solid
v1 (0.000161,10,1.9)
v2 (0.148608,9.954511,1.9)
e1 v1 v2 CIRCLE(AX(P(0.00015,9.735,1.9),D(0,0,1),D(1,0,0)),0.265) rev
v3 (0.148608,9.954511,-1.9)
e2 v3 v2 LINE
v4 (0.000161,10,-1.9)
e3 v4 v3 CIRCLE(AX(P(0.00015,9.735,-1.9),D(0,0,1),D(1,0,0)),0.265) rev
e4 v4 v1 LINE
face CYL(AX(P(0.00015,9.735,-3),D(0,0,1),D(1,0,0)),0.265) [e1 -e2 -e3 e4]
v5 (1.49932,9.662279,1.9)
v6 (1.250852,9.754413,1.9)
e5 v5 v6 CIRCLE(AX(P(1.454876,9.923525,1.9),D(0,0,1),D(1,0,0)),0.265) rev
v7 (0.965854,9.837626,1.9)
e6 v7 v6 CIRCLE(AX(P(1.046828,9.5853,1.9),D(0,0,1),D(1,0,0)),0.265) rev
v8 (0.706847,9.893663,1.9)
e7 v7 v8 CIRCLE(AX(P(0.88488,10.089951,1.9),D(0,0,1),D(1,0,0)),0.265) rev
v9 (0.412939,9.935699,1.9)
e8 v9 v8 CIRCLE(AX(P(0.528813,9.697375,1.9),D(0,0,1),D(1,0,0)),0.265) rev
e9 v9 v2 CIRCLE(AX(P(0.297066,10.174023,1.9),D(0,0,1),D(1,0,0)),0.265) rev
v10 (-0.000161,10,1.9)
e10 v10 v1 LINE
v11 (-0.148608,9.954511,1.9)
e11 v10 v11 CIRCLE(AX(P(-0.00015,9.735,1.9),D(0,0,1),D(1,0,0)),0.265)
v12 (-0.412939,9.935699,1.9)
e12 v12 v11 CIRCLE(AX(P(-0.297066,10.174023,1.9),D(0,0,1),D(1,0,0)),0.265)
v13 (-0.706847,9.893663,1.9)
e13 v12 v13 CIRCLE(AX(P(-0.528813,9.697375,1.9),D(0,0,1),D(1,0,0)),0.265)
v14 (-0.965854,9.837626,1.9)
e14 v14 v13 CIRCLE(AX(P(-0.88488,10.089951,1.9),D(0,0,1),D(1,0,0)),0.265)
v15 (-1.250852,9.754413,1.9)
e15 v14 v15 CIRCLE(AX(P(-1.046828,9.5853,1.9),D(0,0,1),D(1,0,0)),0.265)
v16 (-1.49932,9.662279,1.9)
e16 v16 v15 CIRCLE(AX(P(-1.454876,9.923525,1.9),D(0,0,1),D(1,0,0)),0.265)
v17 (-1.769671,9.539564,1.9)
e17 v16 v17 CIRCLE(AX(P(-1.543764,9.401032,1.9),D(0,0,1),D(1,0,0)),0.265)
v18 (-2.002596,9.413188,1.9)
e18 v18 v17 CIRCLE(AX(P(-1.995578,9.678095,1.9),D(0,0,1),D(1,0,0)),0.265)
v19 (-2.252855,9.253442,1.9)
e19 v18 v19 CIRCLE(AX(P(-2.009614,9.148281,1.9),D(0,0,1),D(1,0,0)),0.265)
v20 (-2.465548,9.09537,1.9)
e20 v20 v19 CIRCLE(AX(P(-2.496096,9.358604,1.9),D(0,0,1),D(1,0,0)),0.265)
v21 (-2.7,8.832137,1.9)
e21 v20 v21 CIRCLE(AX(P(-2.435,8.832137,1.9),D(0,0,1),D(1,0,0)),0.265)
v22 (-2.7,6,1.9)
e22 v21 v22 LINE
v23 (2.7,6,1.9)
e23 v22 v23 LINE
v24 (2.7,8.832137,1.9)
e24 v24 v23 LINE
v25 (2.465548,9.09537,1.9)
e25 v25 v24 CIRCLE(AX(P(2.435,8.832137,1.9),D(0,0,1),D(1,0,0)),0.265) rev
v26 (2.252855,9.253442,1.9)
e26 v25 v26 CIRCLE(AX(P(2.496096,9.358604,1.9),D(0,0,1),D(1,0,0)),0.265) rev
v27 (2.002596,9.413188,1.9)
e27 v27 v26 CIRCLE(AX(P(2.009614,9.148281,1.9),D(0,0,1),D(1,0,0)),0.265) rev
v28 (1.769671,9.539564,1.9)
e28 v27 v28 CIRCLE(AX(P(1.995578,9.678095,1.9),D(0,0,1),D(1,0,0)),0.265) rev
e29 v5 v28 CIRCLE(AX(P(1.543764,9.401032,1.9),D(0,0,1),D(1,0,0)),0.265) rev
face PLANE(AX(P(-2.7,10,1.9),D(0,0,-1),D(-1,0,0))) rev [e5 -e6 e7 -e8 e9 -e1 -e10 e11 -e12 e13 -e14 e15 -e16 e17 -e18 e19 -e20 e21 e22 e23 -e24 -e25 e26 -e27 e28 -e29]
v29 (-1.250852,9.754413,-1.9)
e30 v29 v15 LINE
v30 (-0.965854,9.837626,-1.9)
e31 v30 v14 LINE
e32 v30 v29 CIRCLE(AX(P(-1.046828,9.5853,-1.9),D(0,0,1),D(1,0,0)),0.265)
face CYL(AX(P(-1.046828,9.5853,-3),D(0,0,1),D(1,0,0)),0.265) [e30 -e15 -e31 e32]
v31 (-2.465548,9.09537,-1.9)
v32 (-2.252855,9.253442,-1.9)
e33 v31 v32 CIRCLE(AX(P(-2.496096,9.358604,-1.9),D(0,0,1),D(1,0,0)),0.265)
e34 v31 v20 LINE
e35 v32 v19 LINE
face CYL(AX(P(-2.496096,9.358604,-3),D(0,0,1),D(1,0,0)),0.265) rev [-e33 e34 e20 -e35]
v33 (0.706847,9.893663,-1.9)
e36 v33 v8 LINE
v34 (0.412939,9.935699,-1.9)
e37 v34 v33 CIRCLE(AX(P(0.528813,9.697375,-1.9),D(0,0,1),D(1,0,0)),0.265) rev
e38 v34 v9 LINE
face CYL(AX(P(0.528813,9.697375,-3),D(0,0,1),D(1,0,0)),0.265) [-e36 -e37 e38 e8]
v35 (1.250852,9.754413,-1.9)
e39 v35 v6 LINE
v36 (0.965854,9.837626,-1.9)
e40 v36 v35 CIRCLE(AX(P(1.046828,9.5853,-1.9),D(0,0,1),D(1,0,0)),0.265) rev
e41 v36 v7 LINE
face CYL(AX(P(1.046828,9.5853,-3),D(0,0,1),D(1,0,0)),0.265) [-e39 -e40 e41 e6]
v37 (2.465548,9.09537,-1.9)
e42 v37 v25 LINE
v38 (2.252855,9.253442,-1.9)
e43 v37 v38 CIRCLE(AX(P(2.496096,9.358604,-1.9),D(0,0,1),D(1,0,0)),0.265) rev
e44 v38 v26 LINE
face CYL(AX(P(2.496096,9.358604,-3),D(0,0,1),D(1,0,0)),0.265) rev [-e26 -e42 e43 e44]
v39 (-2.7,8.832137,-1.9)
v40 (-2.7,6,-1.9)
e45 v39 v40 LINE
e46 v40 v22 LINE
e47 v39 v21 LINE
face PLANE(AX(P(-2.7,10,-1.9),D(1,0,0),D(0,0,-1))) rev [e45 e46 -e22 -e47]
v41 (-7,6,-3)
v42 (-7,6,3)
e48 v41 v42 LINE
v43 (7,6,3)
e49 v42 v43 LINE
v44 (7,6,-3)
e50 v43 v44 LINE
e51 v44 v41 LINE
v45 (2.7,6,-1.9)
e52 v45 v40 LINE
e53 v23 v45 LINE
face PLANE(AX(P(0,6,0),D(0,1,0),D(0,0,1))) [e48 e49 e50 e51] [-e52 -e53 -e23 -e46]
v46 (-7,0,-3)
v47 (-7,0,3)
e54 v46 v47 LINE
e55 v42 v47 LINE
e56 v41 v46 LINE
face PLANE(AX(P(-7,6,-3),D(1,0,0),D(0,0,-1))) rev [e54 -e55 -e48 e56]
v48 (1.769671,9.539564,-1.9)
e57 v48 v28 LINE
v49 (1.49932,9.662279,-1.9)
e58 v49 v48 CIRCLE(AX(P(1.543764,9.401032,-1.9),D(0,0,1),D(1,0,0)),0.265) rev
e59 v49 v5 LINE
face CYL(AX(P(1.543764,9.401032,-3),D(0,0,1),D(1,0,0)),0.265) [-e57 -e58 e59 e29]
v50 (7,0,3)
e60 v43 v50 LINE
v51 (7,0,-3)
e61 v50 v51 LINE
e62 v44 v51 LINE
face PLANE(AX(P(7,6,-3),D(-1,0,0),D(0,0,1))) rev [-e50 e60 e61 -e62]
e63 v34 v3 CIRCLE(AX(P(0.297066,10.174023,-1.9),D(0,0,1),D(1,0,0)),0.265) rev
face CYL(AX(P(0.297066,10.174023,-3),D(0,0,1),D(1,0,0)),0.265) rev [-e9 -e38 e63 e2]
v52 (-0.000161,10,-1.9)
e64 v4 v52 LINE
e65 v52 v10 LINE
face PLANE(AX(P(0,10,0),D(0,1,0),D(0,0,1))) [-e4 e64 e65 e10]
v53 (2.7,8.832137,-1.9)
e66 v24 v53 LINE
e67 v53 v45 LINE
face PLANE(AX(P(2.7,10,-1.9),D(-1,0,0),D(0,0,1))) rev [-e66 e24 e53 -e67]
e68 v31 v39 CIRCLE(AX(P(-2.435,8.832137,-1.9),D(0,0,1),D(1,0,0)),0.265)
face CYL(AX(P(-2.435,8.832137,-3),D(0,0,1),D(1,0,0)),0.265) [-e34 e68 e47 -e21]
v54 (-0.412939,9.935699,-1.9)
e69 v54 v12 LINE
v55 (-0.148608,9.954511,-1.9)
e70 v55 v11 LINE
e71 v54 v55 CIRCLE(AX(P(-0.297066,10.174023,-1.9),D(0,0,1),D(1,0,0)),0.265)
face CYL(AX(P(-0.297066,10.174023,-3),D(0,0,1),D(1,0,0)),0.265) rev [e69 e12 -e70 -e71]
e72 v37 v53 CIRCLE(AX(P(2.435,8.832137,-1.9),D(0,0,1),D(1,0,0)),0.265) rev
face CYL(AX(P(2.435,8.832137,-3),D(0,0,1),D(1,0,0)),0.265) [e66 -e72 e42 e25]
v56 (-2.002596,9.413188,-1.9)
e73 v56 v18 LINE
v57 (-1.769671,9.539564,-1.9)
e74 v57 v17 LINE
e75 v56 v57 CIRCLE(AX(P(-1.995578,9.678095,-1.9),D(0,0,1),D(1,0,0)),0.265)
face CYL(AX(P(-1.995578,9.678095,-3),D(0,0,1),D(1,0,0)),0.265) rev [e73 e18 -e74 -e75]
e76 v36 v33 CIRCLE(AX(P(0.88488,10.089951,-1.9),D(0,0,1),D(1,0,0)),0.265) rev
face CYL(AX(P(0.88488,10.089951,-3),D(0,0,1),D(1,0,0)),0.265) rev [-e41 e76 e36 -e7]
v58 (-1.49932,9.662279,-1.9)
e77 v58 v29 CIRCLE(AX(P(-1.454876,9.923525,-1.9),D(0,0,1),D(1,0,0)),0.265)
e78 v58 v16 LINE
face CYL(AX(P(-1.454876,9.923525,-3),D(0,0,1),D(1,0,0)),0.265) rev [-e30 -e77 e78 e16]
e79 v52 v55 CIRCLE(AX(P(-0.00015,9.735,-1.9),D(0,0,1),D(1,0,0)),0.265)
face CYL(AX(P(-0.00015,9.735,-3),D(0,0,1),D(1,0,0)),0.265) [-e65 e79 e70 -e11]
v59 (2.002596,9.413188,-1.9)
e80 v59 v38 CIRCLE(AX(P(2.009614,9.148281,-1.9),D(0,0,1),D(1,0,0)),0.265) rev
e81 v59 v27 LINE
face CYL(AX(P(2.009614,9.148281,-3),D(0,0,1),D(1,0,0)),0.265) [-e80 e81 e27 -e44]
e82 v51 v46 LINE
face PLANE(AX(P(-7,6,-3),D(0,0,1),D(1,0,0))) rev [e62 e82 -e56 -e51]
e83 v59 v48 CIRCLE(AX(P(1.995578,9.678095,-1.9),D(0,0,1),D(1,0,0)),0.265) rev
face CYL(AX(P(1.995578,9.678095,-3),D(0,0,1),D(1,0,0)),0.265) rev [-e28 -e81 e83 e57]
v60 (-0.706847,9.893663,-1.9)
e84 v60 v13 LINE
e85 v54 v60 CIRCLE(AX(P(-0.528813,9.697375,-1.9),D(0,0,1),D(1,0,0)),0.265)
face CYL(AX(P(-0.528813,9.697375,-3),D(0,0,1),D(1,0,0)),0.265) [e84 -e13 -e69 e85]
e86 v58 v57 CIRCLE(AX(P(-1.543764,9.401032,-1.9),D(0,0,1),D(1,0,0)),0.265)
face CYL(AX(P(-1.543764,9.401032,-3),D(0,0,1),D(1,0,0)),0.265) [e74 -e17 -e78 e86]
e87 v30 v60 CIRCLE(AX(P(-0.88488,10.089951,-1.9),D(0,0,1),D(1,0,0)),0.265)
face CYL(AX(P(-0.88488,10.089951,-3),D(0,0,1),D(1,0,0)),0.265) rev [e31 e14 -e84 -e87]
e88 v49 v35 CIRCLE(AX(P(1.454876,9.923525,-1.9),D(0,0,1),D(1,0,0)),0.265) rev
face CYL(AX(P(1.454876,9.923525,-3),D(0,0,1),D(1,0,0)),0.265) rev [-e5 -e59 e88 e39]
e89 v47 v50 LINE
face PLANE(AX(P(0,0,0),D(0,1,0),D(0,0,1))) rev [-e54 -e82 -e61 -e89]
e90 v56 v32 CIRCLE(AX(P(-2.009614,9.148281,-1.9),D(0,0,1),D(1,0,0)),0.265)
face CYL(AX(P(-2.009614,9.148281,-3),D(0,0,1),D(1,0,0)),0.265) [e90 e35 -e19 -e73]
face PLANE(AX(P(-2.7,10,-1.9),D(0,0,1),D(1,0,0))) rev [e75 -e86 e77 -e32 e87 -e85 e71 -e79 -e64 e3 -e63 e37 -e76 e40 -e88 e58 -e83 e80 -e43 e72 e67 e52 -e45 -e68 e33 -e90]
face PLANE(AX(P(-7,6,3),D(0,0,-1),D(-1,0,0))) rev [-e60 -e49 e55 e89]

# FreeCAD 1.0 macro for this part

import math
import FreeCAD as App
import Part
import Sketcher
Q = App.Units.Quantity

doc = App.newDocument("Part")
body = doc.addObject("PartDesign::Body", "Body")

sketch1 = body.newObject("Sketcher::SketchObject", "Sketch")
sketch1.AttachmentSupport = (doc.getObject("XZ_Plane"), [""])
sketch1.MapMode = "FlatFace"
sketch1.addGeometry(Part.LineSegment(App.Vector(-7, -3, 0), App.Vector(-7, 3, 0)), False)
sketch1.addGeometry(Part.LineSegment(App.Vector(-7, 3, 0), App.Vector(7, 3, 0)), False)
sketch1.addGeometry(Part.LineSegment(App.Vector(7, 3, 0), App.Vector(7, -3, 0)), False)
sketch1.addGeometry(Part.LineSegment(App.Vector(7, -3, 0), App.Vector(-7, -3, 0)), False)
sketch1.addConstraint(Sketcher.Constraint("Coincident", 0, 2, 1, 1))
sketch1.addConstraint(Sketcher.Constraint("Coincident", 1, 2, 2, 1))
sketch1.addConstraint(Sketcher.Constraint("Coincident", 2, 2, 3, 1))
sketch1.addConstraint(Sketcher.Constraint("Coincident", 3, 2, 0, 1))
sketch1.addConstraint(Sketcher.Constraint("Vertical", 0))
sketch1.addConstraint(Sketcher.Constraint("Horizontal", 1))
sketch1.addConstraint(Sketcher.Constraint("Vertical", 2))
sketch1.addConstraint(Sketcher.Constraint("Horizontal", 3))
sketch1.addConstraint(Sketcher.Constraint("Symmetric", 0, 2, 2, 2, -1, 1))
sketch1.addConstraint(Sketcher.Constraint("DistanceX", 1, 1, 1, 2, Q("14 mm")))
sketch1.addConstraint(Sketcher.Constraint("DistanceY", 0, 1, 0, 2, Q("6 mm")))
pad1 = body.newObject("PartDesign::Pad", "Pad")
pad1.Profile = sketch1
pad1.Length = 6
pad1.Reversed = True

sketch2 = body.newObject("Sketcher::SketchObject", "Sketch001")
sketch2.AttachmentSupport = (doc.getObject("XZ_Plane"), [""])
sketch2.MapMode = "FlatFace"
sketch2.AttachmentOffset = App.Placement(App.Vector(0, 0, -6), App.Rotation())
sketch2.addGeometry(Part.LineSegment(App.Vector(-2.7, -1.9, 0), App.Vector(-2.7, 1.9, 0)), False)
sketch2.addGeometry(Part.LineSegment(App.Vector(-2.7, 1.9, 0), App.Vector(2.7, 1.9, 0)), False)
sketch2.addGeometry(Part.LineSegment(App.Vector(2.7, 1.9, 0), App.Vector(2.7, -1.9, 0)), False)
sketch2.addGeometry(Part.LineSegment(App.Vector(2.7, -1.9, 0), App.Vector(-2.7, -1.9, 0)), False)
sketch2.addConstraint(Sketcher.Constraint("Coincident", 0, 2, 1, 1))
sketch2.addConstraint(Sketcher.Constraint("Coincident", 1, 2, 2, 1))
sketch2.addConstraint(Sketcher.Constraint("Coincident", 2, 2, 3, 1))
sketch2.addConstraint(Sketcher.Constraint("Coincident", 3, 2, 0, 1))
sketch2.addConstraint(Sketcher.Constraint("Vertical", 0))
sketch2.addConstraint(Sketcher.Constraint("Horizontal", 1))
sketch2.addConstraint(Sketcher.Constraint("Vertical", 2))
sketch2.addConstraint(Sketcher.Constraint("Horizontal", 3))
sketch2.addConstraint(Sketcher.Constraint("Symmetric", 0, 2, 2, 2, -1, 1))
sketch2.addConstraint(Sketcher.Constraint("DistanceX", 1, 1, 1, 2, Q("5.4 mm")))
sketch2.addConstraint(Sketcher.Constraint("DistanceY", 0, 1, 0, 2, Q("3.8 mm")))
pad2 = body.newObject("PartDesign::Pad", "Pad001")
pad2.Profile = sketch2
pad2.Length = 4
pad2.Reversed = True

sketch3 = body.newObject("Sketcher::SketchObject", "Sketch002")
sketch3.AttachmentSupport = (doc.getObject("XY_Plane"), [""])
sketch3.MapMode = "FlatFace"
sketch3.AttachmentOffset = App.Placement(App.Vector(0, 0, 1.9), App.Rotation())
sketch3.addGeometry(Part.LineSegment(App.Vector(-2.7, 10, 0), App.Vector(-2.7, 8.83, 0)), False)
sketch3.addGeometry(Part.ArcOfCircle(Part.Circle(App.Vector(-2.43, 8.83, 0), App.Vector(0, 0, 1), 0.27), math.radians(97), math.radians(180)), False)
sketch3.addGeometry(Part.ArcOfCircle(Part.Circle(App.Vector(-2.5, 9.36, 0), App.Vector(0, 0, 1), 0.26), math.radians(-83), math.radians(-23)), False)
sketch3.addGeometry(Part.ArcOfCircle(Part.Circle(App.Vector(-2.01, 9.15, 0), App.Vector(0, 0, 1), 0.27), math.radians(88), math.radians(157)), False)
sketch3.addGeometry(Part.ArcOfCircle(Part.Circle(App.Vector(-2, 9.68, 0), App.Vector(0, 0, 1), 0.26), math.radians(-92), math.radians(-32)), False)
sketch3.addGeometry(Part.ArcOfCircle(Part.Circle(App.Vector(-1.54, 9.4, 0), App.Vector(0, 0, 1), 0.26), math.radians(80), math.radians(148)), False)
sketch3.addGeometry(Part.ArcOfCircle(Part.Circle(App.Vector(-1.45, 9.92, 0), App.Vector(0, 0, 1), 0.26), math.radians(-100), math.radians(-40)), False)
sketch3.addGeometry(Part.ArcOfCircle(Part.Circle(App.Vector(-1.05, 9.59, 0), App.Vector(0, 0, 1), 0.27), math.radians(72), math.radians(140)), False)
sketch3.addGeometry(Part.ArcOfCircle(Part.Circle(App.Vector(-0.88, 10.09, 0), App.Vector(0, 0, 1), 0.27), math.radians(-108), math.radians(-48)), False)
sketch3.addGeometry(Part.ArcOfCircle(Part.Circle(App.Vector(-0.53, 9.7, 0), App.Vector(0, 0, 1), 0.26), math.radians(64), math.radians(132)), False)
sketch3.addGeometry(Part.ArcOfCircle(Part.Circle(App.Vector(-0.3, 10.17, 0), App.Vector(0, 0, 1), 0.27), math.radians(-116), math.radians(-56)), False)
sketch3.addGeometry(Part.ArcOfCircle(Part.Circle(App.Vector(0, 9.74, 0), App.Vector(0, 0, 1), 0.26), math.radians(90), math.radians(124)), False)
sketch3.addGeometry(Part.LineSegment(App.Vector(0, 10, 0), App.Vector(-2.7, 10, 0)), False)
sketch3.addGeometry(Part.LineSegment(App.Vector(2.7, 10, 0), App.Vector(0, 10, 0)), False)
sketch3.addGeometry(Part.ArcOfCircle(Part.Circle(App.Vector(0, 9.74, 0), App.Vector(0, 0, 1), 0.26), math.radians(56), math.radians(90)), False)
sketch3.addGeometry(Part.ArcOfCircle(Part.Circle(App.Vector(0.3, 10.17, 0), App.Vector(0, 0, 1), 0.27), math.radians(-124), math.radians(-64)), False)
sketch3.addGeometry(Part.ArcOfCircle(Part.Circle(App.Vector(0.53, 9.7, 0), App.Vector(0, 0, 1), 0.26), math.radians(48), math.radians(116)), False)
sketch3.addGeometry(Part.ArcOfCircle(Part.Circle(App.Vector(0.88, 10.09, 0), App.Vector(0, 0, 1), 0.27), math.radians(-132), math.radians(-72)), False)
sketch3.addGeometry(Part.ArcOfCircle(Part.Circle(App.Vector(1.05, 9.59, 0), App.Vector(0, 0, 1), 0.27), math.radians(40), math.radians(108)), False)
sketch3.addGeometry(Part.ArcOfCircle(Part.Circle(App.Vector(1.45, 9.92, 0), App.Vector(0, 0, 1), 0.26), math.radians(-140), math.radians(-80)), False)
sketch3.addGeometry(Part.ArcOfCircle(Part.Circle(App.Vector(1.54, 9.4, 0), App.Vector(0, 0, 1), 0.26), math.radians(32), math.radians(100)), False)
sketch3.addGeometry(Part.ArcOfCircle(Part.Circle(App.Vector(2, 9.68, 0), App.Vector(0, 0, 1), 0.26), math.radians(-148), math.radians(-88)), False)
sketch3.addGeometry(Part.ArcOfCircle(Part.Circle(App.Vector(2.01, 9.15, 0), App.Vector(0, 0, 1), 0.27), math.radians(23), math.radians(92)), False)
sketch3.addGeometry(Part.ArcOfCircle(Part.Circle(App.Vector(2.5, 9.36, 0), App.Vector(0, 0, 1), 0.26), math.radians(-157), math.radians(-97)), False)
sketch3.addGeometry(Part.ArcOfCircle(Part.Circle(App.Vector(2.43, 8.83, 0), App.Vector(0, 0, 1), 0.27), math.radians(0), math.radians(83)), False)
sketch3.addGeometry(Part.LineSegment(App.Vector(2.7, 8.83, 0), App.Vector(2.7, 10, 0)), False)
sketch3.addConstraint(Sketcher.Constraint("Tangent", 0, 2, 1, 2))
sketch3.addConstraint(Sketcher.Constraint("Tangent", 1, 1, 2, 1))
sketch3.addConstraint(Sketcher.Constraint("Tangent", 2, 2, 3, 2))
sketch3.addConstraint(Sketcher.Constraint("Tangent", 3, 1, 4, 1))
sketch3.addConstraint(Sketcher.Constraint("Tangent", 4, 2, 5, 2))
sketch3.addConstraint(Sketcher.Constraint("Tangent", 5, 1, 6, 1))
sketch3.addConstraint(Sketcher.Constraint("Tangent", 6, 2, 7, 2))
sketch3.addConstraint(Sketcher.Constraint("Tangent", 7, 1, 8, 1))
sketch3.addConstraint(Sketcher.Constraint("Tangent", 8, 2, 9, 2))
sketch3.addConstraint(Sketcher.Constraint("Tangent", 9, 1, 10, 1))
sketch3.addConstraint(Sketcher.Constraint("Tangent", 10, 2, 11, 2))
sketch3.addConstraint(Sketcher.Constraint("Coincident", 11, 1, 12, 1))
sketch3.addConstraint(Sketcher.Constraint("Coincident", 12, 2, 0, 1))
sketch3.addConstraint(Sketcher.Constraint("Coincident", 13, 2, 14, 2))
sketch3.addConstraint(Sketcher.Constraint("Tangent", 14, 1, 15, 1))
sketch3.addConstraint(Sketcher.Constraint("Tangent", 15, 2, 16, 2))
sketch3.addConstraint(Sketcher.Constraint("Tangent", 16, 1, 17, 1))
sketch3.addConstraint(Sketcher.Constraint("Tangent", 17, 2, 18, 2))
sketch3.addConstraint(Sketcher.Constraint("Tangent", 18, 1, 19, 1))
sketch3.addConstraint(Sketcher.Constraint("Tangent", 19, 2, 20, 2))
sketch3.addConstraint(Sketcher.Constraint("Tangent", 20, 1, 21, 1))
sketch3.addConstraint(Sketcher.Constraint("Tangent", 21, 2, 22, 2))
sketch3.addConstraint(Sketcher.Constraint("Tangent", 22, 1, 23, 1))
sketch3.addConstraint(Sketcher.Constraint("Tangent", 23, 2, 24, 2))
sketch3.addConstraint(Sketcher.Constraint("Tangent", 24, 1, 25, 1))
sketch3.addConstraint(Sketcher.Constraint("Coincident", 25, 2, 13, 1))
sketch3.addConstraint(Sketcher.Constraint("Vertical", 0))
sketch3.addConstraint(Sketcher.Constraint("Horizontal", 12))
sketch3.addConstraint(Sketcher.Constraint("Horizontal", 13))
sketch3.addConstraint(Sketcher.Constraint("Vertical", 25))
sketch3.addConstraint(Sketcher.Constraint("Equal", 1, 2))
sketch3.addConstraint(Sketcher.Constraint("Equal", 2, 3))
sketch3.addConstraint(Sketcher.Constraint("Equal", 3, 4))
sketch3.addConstraint(Sketcher.Constraint("Equal", 4, 5))
sketch3.addConstraint(Sketcher.Constraint("Equal", 5, 6))
sketch3.addConstraint(Sketcher.Constraint("Equal", 6, 7))
sketch3.addConstraint(Sketcher.Constraint("Equal", 7, 8))
sketch3.addConstraint(Sketcher.Constraint("Equal", 8, 9))
sketch3.addConstraint(Sketcher.Constraint("Equal", 9, 10))
sketch3.addConstraint(Sketcher.Constraint("Equal", 10, 11))
sketch3.addConstraint(Sketcher.Constraint("Equal", 11, 14))
sketch3.addConstraint(Sketcher.Constraint("Equal", 14, 15))
sketch3.addConstraint(Sketcher.Constraint("Equal", 15, 16))
sketch3.addConstraint(Sketcher.Constraint("Equal", 16, 17))
sketch3.addConstraint(Sketcher.Constraint("Equal", 17, 18))
sketch3.addConstraint(Sketcher.Constraint("Equal", 18, 19))
sketch3.addConstraint(Sketcher.Constraint("Equal", 19, 20))
sketch3.addConstraint(Sketcher.Constraint("Equal", 20, 21))
sketch3.addConstraint(Sketcher.Constraint("Equal", 21, 22))
sketch3.addConstraint(Sketcher.Constraint("Equal", 22, 23))
sketch3.addConstraint(Sketcher.Constraint("Equal", 23, 24))
sketch3.addConstraint(Sketcher.Constraint("Symmetric", 11, 3, 14, 3, -2))
sketch3.addConstraint(Sketcher.Constraint("Symmetric", 9, 3, 16, 3, -2))
sketch3.addConstraint(Sketcher.Constraint("Symmetric", 7, 3, 18, 3, -2))
sketch3.addConstraint(Sketcher.Constraint("Symmetric", 5, 3, 20, 3, -2))
sketch3.addConstraint(Sketcher.Constraint("Symmetric", 3, 3, 22, 3, -2))
sketch3.addConstraint(Sketcher.Constraint("Symmetric", 1, 3, 24, 3, -2))
sketch3.addConstraint(Sketcher.Constraint("Equal", 12, 13))
sketch3.addConstraint(Sketcher.Constraint("DistanceY", -1, 1, 11, 1, Q("10 mm")))
sketch3.addConstraint(Sketcher.Constraint("Radius", 1, Q("0.265 mm")))
sketch3.addConstraint(Sketcher.Constraint("DistanceX", 0, 2, -1, 1, Q("2.7 mm")))
sketch3.addConstraint(Sketcher.Constraint("DistanceX", 6, 2, 7, 1, Q("0.284998 mm")))
sketch3.addConstraint(Sketcher.Constraint("DistanceX", 12, 2, 12, 1, Q("2.699839 mm")))
sketch3.addConstraint(Sketcher.Constraint("DistanceY", -1, 1, 7, 3, Q("9.5853 mm")))
sketch3.addConstraint(Sketcher.Constraint("DistanceY", -1, 1, 9, 1, Q("9.935699 mm")))
sketch3.addConstraint(Sketcher.Constraint("DistanceX", 4, 3, 6, 3, Q("0.540701 mm")))
sketch3.addConstraint(Sketcher.Constraint("DistanceX", 11, 3, 14, 3, Q("0.0003 mm")))
sketch3.addConstraint(Sketcher.Constraint("DistanceX", 2, 3, 3, 1, Q("0.4935 mm")))
sketch3.addConstraint(Sketcher.Constraint("DistanceY", 7, 1, 6, 3, Q("0.085899 mm")))
sketch3.addConstraint(Sketcher.Constraint("DistanceX", 11, 1, 15, 2, Q("0.4131 mm")))
sketch3.addConstraint(Sketcher.Constraint("DistanceY", 0, 2, 0, 1, Q("1.167863 mm")))
sketch3.addConstraint(Sketcher.Constraint("DistanceY", -1, 1, 3, 3, Q("9.148281 mm")))
pocket1 = body.newObject("PartDesign::Pocket", "Pocket")
pocket1.Profile = sketch3
pocket1.Type = "ThroughAll"

doc.recompute()
